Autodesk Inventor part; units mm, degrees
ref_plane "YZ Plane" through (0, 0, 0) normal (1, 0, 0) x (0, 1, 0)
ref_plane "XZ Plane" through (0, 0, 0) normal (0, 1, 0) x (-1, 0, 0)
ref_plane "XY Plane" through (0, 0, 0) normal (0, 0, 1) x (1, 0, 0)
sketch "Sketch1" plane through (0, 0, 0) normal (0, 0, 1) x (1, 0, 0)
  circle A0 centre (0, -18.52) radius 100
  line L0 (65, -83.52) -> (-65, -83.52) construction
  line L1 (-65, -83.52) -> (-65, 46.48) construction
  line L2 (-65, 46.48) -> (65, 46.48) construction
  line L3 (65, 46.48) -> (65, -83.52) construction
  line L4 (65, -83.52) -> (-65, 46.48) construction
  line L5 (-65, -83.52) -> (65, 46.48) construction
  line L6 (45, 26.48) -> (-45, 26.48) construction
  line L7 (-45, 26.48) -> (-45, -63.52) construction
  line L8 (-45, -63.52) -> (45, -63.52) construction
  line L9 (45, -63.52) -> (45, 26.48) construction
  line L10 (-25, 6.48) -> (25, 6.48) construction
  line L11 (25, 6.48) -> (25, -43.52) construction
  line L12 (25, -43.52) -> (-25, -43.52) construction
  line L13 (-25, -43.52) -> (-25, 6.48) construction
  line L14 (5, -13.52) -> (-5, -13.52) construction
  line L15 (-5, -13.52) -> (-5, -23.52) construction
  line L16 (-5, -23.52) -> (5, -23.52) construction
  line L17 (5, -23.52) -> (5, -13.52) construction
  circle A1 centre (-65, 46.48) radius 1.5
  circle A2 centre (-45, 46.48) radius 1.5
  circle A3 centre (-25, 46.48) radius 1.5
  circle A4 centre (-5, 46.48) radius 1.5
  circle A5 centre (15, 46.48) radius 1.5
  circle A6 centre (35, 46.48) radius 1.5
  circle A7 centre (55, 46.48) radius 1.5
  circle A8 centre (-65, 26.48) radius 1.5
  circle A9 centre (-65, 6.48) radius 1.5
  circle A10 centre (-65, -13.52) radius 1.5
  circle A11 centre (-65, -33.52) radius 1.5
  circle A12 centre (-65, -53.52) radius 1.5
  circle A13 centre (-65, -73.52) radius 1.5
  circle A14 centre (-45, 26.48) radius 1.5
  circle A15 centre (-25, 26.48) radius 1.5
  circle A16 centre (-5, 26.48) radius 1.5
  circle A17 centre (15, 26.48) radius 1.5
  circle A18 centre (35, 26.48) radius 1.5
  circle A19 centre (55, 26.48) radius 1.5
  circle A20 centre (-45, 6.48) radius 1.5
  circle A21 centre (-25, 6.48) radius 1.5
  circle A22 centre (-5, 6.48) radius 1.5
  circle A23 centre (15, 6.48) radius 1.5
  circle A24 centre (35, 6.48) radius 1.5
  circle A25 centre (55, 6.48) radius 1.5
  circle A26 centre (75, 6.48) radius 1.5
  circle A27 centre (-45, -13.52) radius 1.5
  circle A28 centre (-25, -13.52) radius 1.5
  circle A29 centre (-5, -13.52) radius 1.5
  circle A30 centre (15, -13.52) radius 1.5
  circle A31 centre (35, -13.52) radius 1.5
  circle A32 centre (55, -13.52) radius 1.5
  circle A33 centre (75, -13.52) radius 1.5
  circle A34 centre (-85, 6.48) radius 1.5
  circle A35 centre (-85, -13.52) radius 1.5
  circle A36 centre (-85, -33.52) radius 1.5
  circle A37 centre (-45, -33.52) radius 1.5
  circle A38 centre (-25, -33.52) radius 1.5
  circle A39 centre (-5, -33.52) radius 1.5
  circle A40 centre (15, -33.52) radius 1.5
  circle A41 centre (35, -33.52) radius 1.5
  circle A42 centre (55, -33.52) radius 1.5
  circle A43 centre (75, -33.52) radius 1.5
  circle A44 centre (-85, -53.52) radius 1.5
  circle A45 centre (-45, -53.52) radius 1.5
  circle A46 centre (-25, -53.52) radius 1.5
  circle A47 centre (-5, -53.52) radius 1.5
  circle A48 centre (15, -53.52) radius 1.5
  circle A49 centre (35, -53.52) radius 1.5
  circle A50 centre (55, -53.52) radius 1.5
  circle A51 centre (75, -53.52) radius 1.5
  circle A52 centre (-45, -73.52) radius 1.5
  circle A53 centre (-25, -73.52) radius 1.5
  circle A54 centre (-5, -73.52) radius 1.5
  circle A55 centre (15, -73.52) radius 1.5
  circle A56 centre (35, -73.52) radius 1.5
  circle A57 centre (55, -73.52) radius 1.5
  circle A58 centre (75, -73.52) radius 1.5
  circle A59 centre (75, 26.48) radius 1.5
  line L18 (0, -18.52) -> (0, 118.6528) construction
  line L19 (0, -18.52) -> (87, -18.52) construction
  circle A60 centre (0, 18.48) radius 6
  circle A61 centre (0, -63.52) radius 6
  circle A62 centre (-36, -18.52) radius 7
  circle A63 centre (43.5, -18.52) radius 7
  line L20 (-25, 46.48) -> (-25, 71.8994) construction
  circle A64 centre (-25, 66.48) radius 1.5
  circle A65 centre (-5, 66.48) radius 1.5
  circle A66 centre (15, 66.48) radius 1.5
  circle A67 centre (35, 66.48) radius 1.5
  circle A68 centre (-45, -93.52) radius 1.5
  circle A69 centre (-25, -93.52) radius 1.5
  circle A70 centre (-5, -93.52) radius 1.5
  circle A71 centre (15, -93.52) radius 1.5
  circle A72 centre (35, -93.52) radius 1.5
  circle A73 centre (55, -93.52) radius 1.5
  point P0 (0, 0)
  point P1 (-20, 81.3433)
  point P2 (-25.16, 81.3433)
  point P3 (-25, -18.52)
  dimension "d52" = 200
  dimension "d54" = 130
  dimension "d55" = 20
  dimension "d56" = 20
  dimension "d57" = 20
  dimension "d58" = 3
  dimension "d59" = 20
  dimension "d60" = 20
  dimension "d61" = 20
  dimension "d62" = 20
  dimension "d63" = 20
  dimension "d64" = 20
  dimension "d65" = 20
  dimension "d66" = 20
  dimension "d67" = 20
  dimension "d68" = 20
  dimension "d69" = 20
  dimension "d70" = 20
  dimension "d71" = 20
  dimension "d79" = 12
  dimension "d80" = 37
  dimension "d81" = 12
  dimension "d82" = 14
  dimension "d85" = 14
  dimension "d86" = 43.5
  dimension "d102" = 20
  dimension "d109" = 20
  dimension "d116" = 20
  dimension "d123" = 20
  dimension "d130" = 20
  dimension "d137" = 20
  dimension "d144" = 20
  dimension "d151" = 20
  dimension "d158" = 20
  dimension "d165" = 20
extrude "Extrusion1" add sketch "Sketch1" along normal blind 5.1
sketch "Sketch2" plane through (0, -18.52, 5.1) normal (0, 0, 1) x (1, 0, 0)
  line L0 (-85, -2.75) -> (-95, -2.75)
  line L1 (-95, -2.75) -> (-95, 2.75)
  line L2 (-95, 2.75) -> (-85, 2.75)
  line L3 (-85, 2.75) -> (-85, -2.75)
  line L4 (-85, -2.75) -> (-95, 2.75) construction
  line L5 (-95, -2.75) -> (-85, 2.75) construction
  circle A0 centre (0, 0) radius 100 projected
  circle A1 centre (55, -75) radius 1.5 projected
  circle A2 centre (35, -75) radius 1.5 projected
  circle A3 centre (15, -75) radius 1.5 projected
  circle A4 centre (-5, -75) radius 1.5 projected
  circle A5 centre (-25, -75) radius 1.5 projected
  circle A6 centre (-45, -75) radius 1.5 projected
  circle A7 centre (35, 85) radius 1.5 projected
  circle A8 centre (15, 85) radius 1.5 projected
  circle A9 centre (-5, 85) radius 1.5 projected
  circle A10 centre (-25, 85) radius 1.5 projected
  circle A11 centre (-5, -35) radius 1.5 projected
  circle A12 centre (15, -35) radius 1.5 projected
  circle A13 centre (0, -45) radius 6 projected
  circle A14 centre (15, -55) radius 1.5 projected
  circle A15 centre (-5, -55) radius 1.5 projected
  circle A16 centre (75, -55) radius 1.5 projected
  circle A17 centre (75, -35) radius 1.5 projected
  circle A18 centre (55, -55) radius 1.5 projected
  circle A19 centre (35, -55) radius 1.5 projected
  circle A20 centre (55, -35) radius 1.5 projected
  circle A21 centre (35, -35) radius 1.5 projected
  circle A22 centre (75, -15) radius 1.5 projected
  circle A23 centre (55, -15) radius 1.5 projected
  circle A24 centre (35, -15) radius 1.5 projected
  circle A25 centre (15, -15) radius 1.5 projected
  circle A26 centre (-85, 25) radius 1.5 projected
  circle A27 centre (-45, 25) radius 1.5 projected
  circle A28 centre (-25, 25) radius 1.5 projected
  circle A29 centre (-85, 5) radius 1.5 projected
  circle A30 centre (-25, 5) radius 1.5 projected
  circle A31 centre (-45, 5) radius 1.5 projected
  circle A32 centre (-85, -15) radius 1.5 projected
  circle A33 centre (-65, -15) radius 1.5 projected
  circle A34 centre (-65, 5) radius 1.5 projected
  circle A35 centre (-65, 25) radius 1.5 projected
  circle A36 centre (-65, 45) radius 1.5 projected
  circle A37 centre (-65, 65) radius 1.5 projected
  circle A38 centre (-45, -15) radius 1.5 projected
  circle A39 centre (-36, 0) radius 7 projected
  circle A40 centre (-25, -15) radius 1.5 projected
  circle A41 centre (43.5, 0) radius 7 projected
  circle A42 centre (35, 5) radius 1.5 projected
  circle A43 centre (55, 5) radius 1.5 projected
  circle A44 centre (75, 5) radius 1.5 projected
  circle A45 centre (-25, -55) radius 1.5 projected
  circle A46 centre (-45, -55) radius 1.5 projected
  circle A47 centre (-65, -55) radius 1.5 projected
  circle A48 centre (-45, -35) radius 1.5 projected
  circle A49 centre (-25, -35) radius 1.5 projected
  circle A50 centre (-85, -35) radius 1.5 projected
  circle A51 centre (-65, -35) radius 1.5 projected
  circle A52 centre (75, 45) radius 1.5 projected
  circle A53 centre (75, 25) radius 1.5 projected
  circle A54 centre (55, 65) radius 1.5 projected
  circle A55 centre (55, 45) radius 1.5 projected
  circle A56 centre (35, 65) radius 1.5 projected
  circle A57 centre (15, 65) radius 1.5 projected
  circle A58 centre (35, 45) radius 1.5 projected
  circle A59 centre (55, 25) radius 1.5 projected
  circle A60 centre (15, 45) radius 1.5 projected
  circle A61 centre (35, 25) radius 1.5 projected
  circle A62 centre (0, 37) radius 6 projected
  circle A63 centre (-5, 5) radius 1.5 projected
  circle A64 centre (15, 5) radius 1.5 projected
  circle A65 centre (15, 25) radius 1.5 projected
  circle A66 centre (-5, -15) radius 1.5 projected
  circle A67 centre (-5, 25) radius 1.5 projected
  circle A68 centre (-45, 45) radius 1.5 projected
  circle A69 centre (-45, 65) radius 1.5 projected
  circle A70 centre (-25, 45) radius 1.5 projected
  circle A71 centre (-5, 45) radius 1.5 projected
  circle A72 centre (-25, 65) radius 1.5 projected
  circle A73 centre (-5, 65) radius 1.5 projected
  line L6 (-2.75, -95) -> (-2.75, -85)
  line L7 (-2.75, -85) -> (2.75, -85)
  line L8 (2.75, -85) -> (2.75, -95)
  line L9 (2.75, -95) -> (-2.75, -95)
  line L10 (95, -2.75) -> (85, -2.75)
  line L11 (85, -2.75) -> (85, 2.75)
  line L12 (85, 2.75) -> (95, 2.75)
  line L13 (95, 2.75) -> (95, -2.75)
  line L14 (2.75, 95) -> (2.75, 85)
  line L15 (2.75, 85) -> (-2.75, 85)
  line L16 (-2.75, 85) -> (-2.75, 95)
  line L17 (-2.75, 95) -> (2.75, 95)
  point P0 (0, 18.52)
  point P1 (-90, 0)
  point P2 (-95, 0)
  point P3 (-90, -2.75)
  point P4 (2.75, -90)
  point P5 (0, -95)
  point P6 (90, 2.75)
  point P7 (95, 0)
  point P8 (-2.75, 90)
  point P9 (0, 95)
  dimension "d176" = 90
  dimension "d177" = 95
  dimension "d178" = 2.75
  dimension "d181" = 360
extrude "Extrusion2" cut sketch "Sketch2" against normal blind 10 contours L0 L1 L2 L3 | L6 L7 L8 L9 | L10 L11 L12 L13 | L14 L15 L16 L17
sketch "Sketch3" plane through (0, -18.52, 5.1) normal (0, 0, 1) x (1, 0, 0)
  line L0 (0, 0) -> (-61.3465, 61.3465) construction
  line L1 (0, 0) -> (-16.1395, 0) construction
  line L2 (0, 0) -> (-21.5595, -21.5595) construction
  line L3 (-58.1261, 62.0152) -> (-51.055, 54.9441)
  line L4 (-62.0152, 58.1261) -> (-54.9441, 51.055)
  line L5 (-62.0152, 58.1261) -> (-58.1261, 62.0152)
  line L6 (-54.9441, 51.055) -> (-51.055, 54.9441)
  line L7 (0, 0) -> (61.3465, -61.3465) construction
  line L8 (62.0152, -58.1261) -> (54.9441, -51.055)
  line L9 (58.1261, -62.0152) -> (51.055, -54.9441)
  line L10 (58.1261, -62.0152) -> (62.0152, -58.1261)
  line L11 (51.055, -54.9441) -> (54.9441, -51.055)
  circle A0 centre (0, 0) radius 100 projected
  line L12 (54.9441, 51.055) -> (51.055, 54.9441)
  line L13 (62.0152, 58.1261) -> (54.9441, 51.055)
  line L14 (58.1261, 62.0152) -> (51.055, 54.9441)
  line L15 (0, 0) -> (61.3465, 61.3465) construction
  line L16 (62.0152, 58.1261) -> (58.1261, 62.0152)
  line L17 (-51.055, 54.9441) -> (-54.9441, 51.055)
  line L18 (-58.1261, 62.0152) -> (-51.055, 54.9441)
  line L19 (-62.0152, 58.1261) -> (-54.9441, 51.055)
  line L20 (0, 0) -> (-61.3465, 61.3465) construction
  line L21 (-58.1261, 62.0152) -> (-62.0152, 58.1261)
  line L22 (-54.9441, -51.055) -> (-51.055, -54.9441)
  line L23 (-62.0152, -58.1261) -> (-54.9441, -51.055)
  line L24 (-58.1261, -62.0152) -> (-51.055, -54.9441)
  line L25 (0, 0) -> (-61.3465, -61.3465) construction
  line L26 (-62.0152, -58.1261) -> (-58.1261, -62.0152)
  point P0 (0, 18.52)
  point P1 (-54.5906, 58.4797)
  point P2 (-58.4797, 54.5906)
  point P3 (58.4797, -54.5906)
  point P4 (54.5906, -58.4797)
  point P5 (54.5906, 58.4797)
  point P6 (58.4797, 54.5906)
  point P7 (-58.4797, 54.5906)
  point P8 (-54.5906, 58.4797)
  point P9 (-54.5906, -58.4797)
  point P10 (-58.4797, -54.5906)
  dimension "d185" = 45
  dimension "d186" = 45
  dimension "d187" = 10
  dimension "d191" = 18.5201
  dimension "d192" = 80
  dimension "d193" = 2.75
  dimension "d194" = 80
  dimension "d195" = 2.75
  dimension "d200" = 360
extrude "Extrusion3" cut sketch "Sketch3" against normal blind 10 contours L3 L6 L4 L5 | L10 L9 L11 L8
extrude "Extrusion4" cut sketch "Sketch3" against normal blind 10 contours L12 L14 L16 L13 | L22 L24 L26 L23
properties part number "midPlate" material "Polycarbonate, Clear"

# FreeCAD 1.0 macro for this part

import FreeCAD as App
import Part
import Sketcher

V = App.Vector
Q = App.Units.Quantity


def add_polygon(sketch, points):
    """Adds a closed chain of lines whose ends are joined by coincident constraints."""
    first, n = sketch.GeometryCount, len(points)
    for a, b in zip(points, points[1:] + points[:1]):
        sketch.addGeometry(Part.LineSegment(App.Vector(*a, 0), App.Vector(*b, 0)), False)
    for i in range(n):
        sketch.addConstraint(Sketcher.Constraint("Coincident", first + i, 2, first + (i + 1) % n, 1))

doc = App.newDocument("Part")
params = doc.addObject("Spreadsheet::Sheet", "Params")
for row, (alias, value) in enumerate([
    ("sketch1_diameter", "200 mm"),
    ("sketch1_diameter2", "3 mm"),
    ("sketch1_diameter3", "12 mm"),
    ("sketch1_diameter4", "14 mm"),
    ("pad1_length", "5.1 mm"),
    ("sketch2_width", "10 mm"),
    ("pocket1_length", "10 mm"),
    ("sketch3_length", "10 mm"),
    ("sketch3_length2", "5.5 mm"),
    ("pocket2_length", "10 mm"),
    ("sketch4_length", "10 mm"),
    ("sketch4_length2", "5.5 mm"),
    ("pocket3_length", "10 mm"),
], start=1):
    params.set(f"A{row}", alias)
    params.set(f"B{row}", "=" + value)
    params.setAlias(f"B{row}", alias)

body = doc.addObject("PartDesign::Body", "Body")

sketch1 = body.newObject("Sketcher::SketchObject", "Sketch")
sketch1.AttachmentSupport = (doc.getObject("XY_Plane"), [""])
sketch1.MapMode = "FlatFace"
sketch1.addGeometry([
    Part.Circle(V(0, -18.5, 0), V(0, 0, 1), 100),
    Part.Circle(V(-65, -73.5, 0), V(0, 0, 1), 1.5),
    Part.Circle(V(-45, -93.5, 0), V(0, 0, 1), 1.5),
    Part.Circle(V(-45, -73.5, 0), V(0, 0, 1), 1.5),
    Part.Circle(V(-25, -93.5, 0), V(0, 0, 1), 1.5),
    Part.Circle(V(-5, -93.5, 0), V(0, 0, 1), 1.5),
    Part.Circle(V(-25, -73.5, 0), V(0, 0, 1), 1.5),
    Part.Circle(V(-5, -73.5, 0), V(0, 0, 1), 1.5),
    Part.Circle(V(-85, -53.5, 0), V(0, 0, 1), 1.5),
    Part.Circle(V(-65, -53.5, 0), V(0, 0, 1), 1.5),
    Part.Circle(V(-85, -33.5, 0), V(0, 0, 1), 1.5),
    Part.Circle(V(-65, -33.5, 0), V(0, 0, 1), 1.5),
    Part.Circle(V(-45, -53.5, 0), V(0, 0, 1), 1.5),
    Part.Circle(V(-25, -53.5, 0), V(0, 0, 1), 1.5),
    Part.Circle(V(-5, -53.5, 0), V(0, 0, 1), 1.5),
    Part.Circle(V(-45, -33.5, 0), V(0, 0, 1), 1.5),
    Part.Circle(V(-25, -33.5, 0), V(0, 0, 1), 1.5),
    Part.Circle(V(-5, -33.5, 0), V(0, 0, 1), 1.5),
    Part.Circle(V(15, -93.5, 0), V(0, 0, 1), 1.5),
    Part.Circle(V(15, -73.5, 0), V(0, 0, 1), 1.5),
    Part.Circle(V(35, -93.5, 0), V(0, 0, 1), 1.5),
    Part.Circle(V(35, -73.5, 0), V(0, 0, 1), 1.5),
    Part.Circle(V(55, -93.5, 0), V(0, 0, 1), 1.5),
    Part.Circle(V(55, -73.5, 0), V(0, 0, 1), 1.5),
    Part.Circle(V(75, -73.5, 0), V(0, 0, 1), 1.5),
    Part.Circle(V(0, -63.5, 0), V(0, 0, 1), 6),
    Part.Circle(V(15, -53.5, 0), V(0, 0, 1), 1.5),
    Part.Circle(V(35, -53.5, 0), V(0, 0, 1), 1.5),
    Part.Circle(V(15, -33.5, 0), V(0, 0, 1), 1.5),
    Part.Circle(V(35, -33.5, 0), V(0, 0, 1), 1.5),
    Part.Circle(V(55, -53.5, 0), V(0, 0, 1), 1.5),
    Part.Circle(V(75, -53.5, 0), V(0, 0, 1), 1.5),
    Part.Circle(V(55, -33.5, 0), V(0, 0, 1), 1.5),
    Part.Circle(V(75, -33.5, 0), V(0, 0, 1), 1.5),
    Part.Circle(V(-85, -13.5, 0), V(0, 0, 1), 1.5),
    Part.Circle(V(-65, -13.5, 0), V(0, 0, 1), 1.5),
    Part.Circle(V(-85, 6.5, 0), V(0, 0, 1), 1.5),
    Part.Circle(V(-65, 6.5, 0), V(0, 0, 1), 1.5),
    Part.Circle(V(-65, 26.5, 0), V(0, 0, 1), 1.5),
    Part.Circle(V(-45, -13.5, 0), V(0, 0, 1), 1.5),
    Part.Circle(V(-36, -18.5, 0), V(0, 0, 1), 7),
    Part.Circle(V(-25, -13.5, 0), V(0, 0, 1), 1.5),
    Part.Circle(V(-5, -13.5, 0), V(0, 0, 1), 1.5),
    Part.Circle(V(-45, 6.5, 0), V(0, 0, 1), 1.5),
    Part.Circle(V(-45, 26.5, 0), V(0, 0, 1), 1.5),
    Part.Circle(V(-25, 6.5, 0), V(0, 0, 1), 1.5),
    Part.Circle(V(-5, 6.5, 0), V(0, 0, 1), 1.5),
    Part.Circle(V(-25, 26.5, 0), V(0, 0, 1), 1.5),
    Part.Circle(V(-5, 26.5, 0), V(0, 0, 1), 1.5),
    Part.Circle(V(-65, 46.5, 0), V(0, 0, 1), 1.5),
    Part.Circle(V(-45, 46.5, 0), V(0, 0, 1), 1.5),
    Part.Circle(V(-25, 46.5, 0), V(0, 0, 1), 1.5),
    Part.Circle(V(-5, 46.5, 0), V(0, 0, 1), 1.5),
    Part.Circle(V(-25, 66.5, 0), V(0, 0, 1), 1.5),
    Part.Circle(V(-5, 66.5, 0), V(0, 0, 1), 1.5),
    Part.Circle(V(15, -13.5, 0), V(0, 0, 1), 1.5),
    Part.Circle(V(35, -13.5, 0), V(0, 0, 1), 1.5),
    Part.Circle(V(43.5, -18.5, 0), V(0, 0, 1), 7),
    Part.Circle(V(0, 18.5, 0), V(0, 0, 1), 6),
    Part.Circle(V(15, 6.5, 0), V(0, 0, 1), 1.5),
    Part.Circle(V(15, 26.5, 0), V(0, 0, 1), 1.5),
    Part.Circle(V(35, 6.5, 0), V(0, 0, 1), 1.5),
    Part.Circle(V(35, 26.5, 0), V(0, 0, 1), 1.5),
    Part.Circle(V(55, -13.5, 0), V(0, 0, 1), 1.5),
    Part.Circle(V(75, -13.5, 0), V(0, 0, 1), 1.5),
    Part.Circle(V(55, 6.5, 0), V(0, 0, 1), 1.5),
    Part.Circle(V(55, 26.5, 0), V(0, 0, 1), 1.5),
    Part.Circle(V(75, 6.5, 0), V(0, 0, 1), 1.5),
    Part.Circle(V(75, 26.5, 0), V(0, 0, 1), 1.5),
    Part.Circle(V(15, 46.5, 0), V(0, 0, 1), 1.5),
    Part.Circle(V(35, 46.5, 0), V(0, 0, 1), 1.5),
    Part.Circle(V(15, 66.5, 0), V(0, 0, 1), 1.5),
    Part.Circle(V(35, 66.5, 0), V(0, 0, 1), 1.5),
    Part.Circle(V(55, 46.5, 0), V(0, 0, 1), 1.5),
], False)
sketch1.addConstraint([
    Sketcher.Constraint("Equal", 1, 2),
    Sketcher.Constraint("Equal", 2, 3),
    Sketcher.Constraint("Equal", 3, 4),
    Sketcher.Constraint("Equal", 4, 5),
    Sketcher.Constraint("Equal", 5, 6),
    Sketcher.Constraint("Equal", 6, 7),
    Sketcher.Constraint("Equal", 7, 8),
    Sketcher.Constraint("Equal", 8, 9),
    Sketcher.Constraint("Equal", 9, 10),
    Sketcher.Constraint("Equal", 10, 11),
    Sketcher.Constraint("Equal", 11, 12),
    Sketcher.Constraint("Equal", 12, 13),
    Sketcher.Constraint("Equal", 13, 14),
    Sketcher.Constraint("Equal", 14, 15),
    Sketcher.Constraint("Equal", 15, 16),
    Sketcher.Constraint("Equal", 16, 17),
    Sketcher.Constraint("Equal", 17, 18),
    Sketcher.Constraint("Equal", 18, 19),
    Sketcher.Constraint("Equal", 19, 20),
    Sketcher.Constraint("Equal", 20, 21),
    Sketcher.Constraint("Equal", 21, 22),
    Sketcher.Constraint("Equal", 22, 23),
    Sketcher.Constraint("Equal", 23, 24),
    Sketcher.Constraint("Equal", 24, 26),
    Sketcher.Constraint("Equal", 26, 27),
    Sketcher.Constraint("Equal", 27, 28),
    Sketcher.Constraint("Equal", 28, 29),
    Sketcher.Constraint("Equal", 29, 30),
    Sketcher.Constraint("Equal", 30, 31),
    Sketcher.Constraint("Equal", 31, 32),
    Sketcher.Constraint("Equal", 32, 33),
    Sketcher.Constraint("Equal", 33, 34),
    Sketcher.Constraint("Equal", 34, 35),
    Sketcher.Constraint("Equal", 35, 36),
    Sketcher.Constraint("Equal", 36, 37),
    Sketcher.Constraint("Equal", 37, 38),
    Sketcher.Constraint("Equal", 38, 39),
    Sketcher.Constraint("Equal", 39, 41),
    Sketcher.Constraint("Equal", 41, 42),
    Sketcher.Constraint("Equal", 42, 43),
    Sketcher.Constraint("Equal", 43, 44),
    Sketcher.Constraint("Equal", 44, 45),
    Sketcher.Constraint("Equal", 45, 46),
    Sketcher.Constraint("Equal", 46, 47),
    Sketcher.Constraint("Equal", 47, 48),
    Sketcher.Constraint("Equal", 48, 49),
    Sketcher.Constraint("Equal", 49, 50),
    Sketcher.Constraint("Equal", 50, 51),
    Sketcher.Constraint("Equal", 51, 52),
    Sketcher.Constraint("Equal", 52, 53),
    Sketcher.Constraint("Equal", 53, 54),
    Sketcher.Constraint("Equal", 54, 55),
    Sketcher.Constraint("Equal", 55, 56),
    Sketcher.Constraint("Equal", 40, 57),
    Sketcher.Constraint("Equal", 25, 58),
    Sketcher.Constraint("Equal", 56, 59),
    Sketcher.Constraint("Equal", 59, 60),
    Sketcher.Constraint("Equal", 60, 61),
    Sketcher.Constraint("Equal", 61, 62),
    Sketcher.Constraint("Equal", 62, 63),
    Sketcher.Constraint("Equal", 63, 64),
    Sketcher.Constraint("Equal", 64, 65),
    Sketcher.Constraint("Equal", 65, 66),
    Sketcher.Constraint("Equal", 66, 67),
    Sketcher.Constraint("Equal", 67, 68),
    Sketcher.Constraint("Equal", 68, 69),
    Sketcher.Constraint("Equal", 69, 70),
    Sketcher.Constraint("Equal", 70, 71),
    Sketcher.Constraint("Equal", 71, 72),
    Sketcher.Constraint("Equal", 72, 73),
    Sketcher.Constraint("PointOnObject", 0, 3, -2),
    Sketcher.Constraint("PointOnObject", 25, 3, -2),
    Sketcher.Constraint("PointOnObject", 58, 3, -2),
    Sketcher.Constraint("Horizontal", 1, 3, 3, 3),
    Sketcher.Constraint("Horizontal", 2, 3, 4, 3),
    Sketcher.Constraint("Horizontal", 4, 3, 5, 3),
    Sketcher.Constraint("Horizontal", 3, 3, 6, 3),
    Sketcher.Constraint("Horizontal", 6, 3, 7, 3),
    Sketcher.Constraint("Horizontal", 8, 3, 9, 3),
    Sketcher.Constraint("Horizontal", 10, 3, 11, 3),
    Sketcher.Constraint("Horizontal", 9, 3, 12, 3),
    Sketcher.Constraint("Horizontal", 12, 3, 13, 3),
    Sketcher.Constraint("Horizontal", 13, 3, 14, 3),
    Sketcher.Constraint("Horizontal", 11, 3, 15, 3),
    Sketcher.Constraint("Horizontal", 15, 3, 16, 3),
    Sketcher.Constraint("Horizontal", 16, 3, 17, 3),
    Sketcher.Constraint("Horizontal", 5, 3, 18, 3),
    Sketcher.Constraint("Horizontal", 7, 3, 19, 3),
    Sketcher.Constraint("Horizontal", 18, 3, 20, 3),
    Sketcher.Constraint("Horizontal", 19, 3, 21, 3),
    Sketcher.Constraint("Horizontal", 20, 3, 22, 3),
    Sketcher.Constraint("Horizontal", 21, 3, 23, 3),
    Sketcher.Constraint("Horizontal", 23, 3, 24, 3),
    Sketcher.Constraint("Horizontal", 14, 3, 26, 3),
    Sketcher.Constraint("Horizontal", 26, 3, 27, 3),
    Sketcher.Constraint("Horizontal", 17, 3, 28, 3),
    Sketcher.Constraint("Horizontal", 28, 3, 29, 3),
    Sketcher.Constraint("Horizontal", 27, 3, 30, 3),
    Sketcher.Constraint("Horizontal", 30, 3, 31, 3),
    Sketcher.Constraint("Horizontal", 29, 3, 32, 3),
    Sketcher.Constraint("Horizontal", 32, 3, 33, 3),
    Sketcher.Constraint("Horizontal", 34, 3, 35, 3),
    Sketcher.Constraint("Horizontal", 36, 3, 37, 3),
    Sketcher.Constraint("Horizontal", 35, 3, 39, 3),
    Sketcher.Constraint("Horizontal", 0, 3, 40, 3),
    Sketcher.Constraint("Horizontal", 39, 3, 41, 3),
    Sketcher.Constraint("Horizontal", 41, 3, 42, 3),
    Sketcher.Constraint("Horizontal", 37, 3, 43, 3),
    Sketcher.Constraint("Horizontal", 38, 3, 44, 3),
    Sketcher.Constraint("Horizontal", 43, 3, 45, 3),
    Sketcher.Constraint("Horizontal", 45, 3, 46, 3),
    Sketcher.Constraint("Horizontal", 44, 3, 47, 3),
    Sketcher.Constraint("Horizontal", 47, 3, 48, 3),
    Sketcher.Constraint("Horizontal", 49, 3, 50, 3),
    Sketcher.Constraint("Horizontal", 50, 3, 51, 3),
    Sketcher.Constraint("Horizontal", 51, 3, 52, 3),
    Sketcher.Constraint("Horizontal", 53, 3, 54, 3),
    Sketcher.Constraint("Horizontal", 42, 3, 55, 3),
    Sketcher.Constraint("Horizontal", 55, 3, 56, 3),
    Sketcher.Constraint("Horizontal", 40, 3, 57, 3),
    Sketcher.Constraint("Horizontal", 46, 3, 59, 3),
    Sketcher.Constraint("Horizontal", 48, 3, 60, 3),
    Sketcher.Constraint("Horizontal", 59, 3, 61, 3),
    Sketcher.Constraint("Horizontal", 60, 3, 62, 3),
    Sketcher.Constraint("Horizontal", 56, 3, 63, 3),
    Sketcher.Constraint("Horizontal", 63, 3, 64, 3),
    Sketcher.Constraint("Horizontal", 61, 3, 65, 3),
    Sketcher.Constraint("Horizontal", 62, 3, 66, 3),
    Sketcher.Constraint("Horizontal", 65, 3, 67, 3),
    Sketcher.Constraint("Horizontal", 66, 3, 68, 3),
    Sketcher.Constraint("Horizontal", 52, 3, 69, 3),
    Sketcher.Constraint("Horizontal", 69, 3, 70, 3),
    Sketcher.Constraint("Horizontal", 54, 3, 71, 3),
    Sketcher.Constraint("Horizontal", 71, 3, 72, 3),
    Sketcher.Constraint("Horizontal", 70, 3, 73, 3),
    Sketcher.Constraint("Vertical", 2, 3, 3, 3),
    Sketcher.Constraint("Vertical", 4, 3, 6, 3),
    Sketcher.Constraint("Vertical", 5, 3, 7, 3),
    Sketcher.Constraint("Vertical", 1, 3, 9, 3),
    Sketcher.Constraint("Vertical", 8, 3, 10, 3),
    Sketcher.Constraint("Vertical", 9, 3, 11, 3),
    Sketcher.Constraint("Vertical", 3, 3, 12, 3),
    Sketcher.Constraint("Vertical", 6, 3, 13, 3),
    Sketcher.Constraint("Vertical", 7, 3, 14, 3),
    Sketcher.Constraint("Vertical", 12, 3, 15, 3),
    Sketcher.Constraint("Vertical", 13, 3, 16, 3),
    Sketcher.Constraint("Vertical", 14, 3, 17, 3),
    Sketcher.Constraint("Vertical", 18, 3, 19, 3),
    Sketcher.Constraint("Vertical", 20, 3, 21, 3),
    Sketcher.Constraint("Vertical", 22, 3, 23, 3),
    Sketcher.Constraint("Vertical", 19, 3, 26, 3),
    Sketcher.Constraint("Vertical", 21, 3, 27, 3),
    Sketcher.Constraint("Vertical", 26, 3, 28, 3),
    Sketcher.Constraint("Vertical", 27, 3, 29, 3),
    Sketcher.Constraint("Vertical", 23, 3, 30, 3),
    Sketcher.Constraint("Vertical", 24, 3, 31, 3),
    Sketcher.Constraint("Vertical", 30, 3, 32, 3),
    Sketcher.Constraint("Vertical", 31, 3, 33, 3),
    Sketcher.Constraint("Vertical", 10, 3, 34, 3),
    Sketcher.Constraint("Vertical", 11, 3, 35, 3),
    Sketcher.Constraint("Vertical", 34, 3, 36, 3),
    Sketcher.Constraint("Vertical", 35, 3, 37, 3),
    Sketcher.Constraint("Vertical", 37, 3, 38, 3),
    Sketcher.Constraint("Vertical", 15, 3, 39, 3),
    Sketcher.Constraint("Vertical", 16, 3, 41, 3),
    Sketcher.Constraint("Vertical", 17, 3, 42, 3),
    Sketcher.Constraint("Vertical", 39, 3, 43, 3),
    Sketcher.Constraint("Vertical", 43, 3, 44, 3),
    Sketcher.Constraint("Vertical", 41, 3, 45, 3),
    Sketcher.Constraint("Vertical", 42, 3, 46, 3),
    Sketcher.Constraint("Vertical", 45, 3, 47, 3),
    Sketcher.Constraint("Vertical", 46, 3, 48, 3),
    Sketcher.Constraint("Vertical", 38, 3, 49, 3),
    Sketcher.Constraint("Vertical", 44, 3, 50, 3),
    Sketcher.Constraint("Vertical", 47, 3, 51, 3),
    Sketcher.Constraint("Vertical", 48, 3, 52, 3),
    Sketcher.Constraint("Vertical", 51, 3, 53, 3),
    Sketcher.Constraint("Vertical", 52, 3, 54, 3),
    Sketcher.Constraint("Vertical", 28, 3, 55, 3),
    Sketcher.Constraint("Vertical", 29, 3, 56, 3),
    Sketcher.Constraint("Vertical", 55, 3, 59, 3),
    Sketcher.Constraint("Vertical", 59, 3, 60, 3),
    Sketcher.Constraint("Vertical", 56, 3, 61, 3),
    Sketcher.Constraint("Vertical", 61, 3, 62, 3),
    Sketcher.Constraint("Vertical", 32, 3, 63, 3),
    Sketcher.Constraint("Vertical", 33, 3, 64, 3),
    Sketcher.Constraint("Vertical", 63, 3, 65, 3),
    Sketcher.Constraint("Vertical", 65, 3, 66, 3),
    Sketcher.Constraint("Vertical", 64, 3, 67, 3),
    Sketcher.Constraint("Vertical", 67, 3, 68, 3),
    Sketcher.Constraint("Vertical", 60, 3, 69, 3),
    Sketcher.Constraint("Vertical", 62, 3, 70, 3),
    Sketcher.Constraint("Vertical", 69, 3, 71, 3),
    Sketcher.Constraint("Vertical", 70, 3, 72, 3),
    Sketcher.Constraint("Vertical", 66, 3, 73, 3),
    Sketcher.Constraint("Diameter", 0, Q("200 mm")),
    Sketcher.Constraint("Diameter", 1, Q("3 mm")),
    Sketcher.Constraint("Diameter", 25, Q("12 mm")),
    Sketcher.Constraint("Diameter", 40, Q("14 mm")),
    Sketcher.Constraint("DistanceX", -1, 1, 57, 3, Q("43.5 mm")),
    Sketcher.Constraint("DistanceX", 1, 3, -1, 1, Q("65 mm")),
    Sketcher.Constraint("DistanceX", 2, 3, -1, 1, Q("45 mm")),
    Sketcher.Constraint("DistanceX", 4, 3, -1, 1, Q("25 mm")),
    Sketcher.Constraint("DistanceX", 5, 3, -1, 1, Q("5 mm")),
    Sketcher.Constraint("DistanceX", 8, 3, -1, 1, Q("85 mm")),
    Sketcher.Constraint("DistanceX", -1, 1, 18, 3, Q("15 mm")),
    Sketcher.Constraint("DistanceX", -1, 1, 20, 3, Q("35 mm")),
    Sketcher.Constraint("DistanceX", -1, 1, 22, 3, Q("55 mm")),
    Sketcher.Constraint("DistanceX", -1, 1, 24, 3, Q("75 mm")),
    Sketcher.Constraint("DistanceX", 40, 3, -1, 1, Q("36 mm")),
    Sketcher.Constraint("DistanceY", 0, 3, -1, 1, Q("18.52 mm")),
    Sketcher.Constraint("DistanceY", 1, 3, -1, 1, Q("73.52 mm")),
    Sketcher.Constraint("DistanceY", 2, 3, -1, 1, Q("93.52 mm")),
    Sketcher.Constraint("DistanceY", 8, 3, -1, 1, Q("53.52 mm")),
    Sketcher.Constraint("DistanceY", 10, 3, -1, 1, Q("33.52 mm")),
    Sketcher.Constraint("DistanceY", 25, 3, -1, 1, Q("63.52 mm")),
    Sketcher.Constraint("DistanceY", 34, 3, -1, 1, Q("13.52 mm")),
    Sketcher.Constraint("DistanceY", -1, 1, 36, 3, Q("6.48 mm")),
    Sketcher.Constraint("DistanceY", -1, 1, 38, 3, Q("26.48 mm")),
    Sketcher.Constraint("DistanceY", -1, 1, 49, 3, Q("46.48 mm")),
    Sketcher.Constraint("DistanceY", -1, 1, 53, 3, Q("66.48 mm")),
    Sketcher.Constraint("DistanceY", -1, 1, 58, 3, Q("18.48 mm")),
])
sketch1.setExpression("Constraints[195]", "Params.sketch1_diameter")
sketch1.setExpression("Constraints[196]", "Params.sketch1_diameter2")
sketch1.setExpression("Constraints[197]", "Params.sketch1_diameter3")
sketch1.setExpression("Constraints[198]", "Params.sketch1_diameter4")
pad1 = body.newObject("PartDesign::Pad", "Pad")
pad1.Profile = sketch1
pad1.setExpression("Length", "Params.pad1_length")

sketch2 = body.newObject("Sketcher::SketchObject", "Sketch001")
sketch2.AttachmentSupport = (doc.getObject("XY_Plane"), [""])
sketch2.MapMode = "FlatFace"
sketch2.AttachmentOffset = App.Placement(V(0, 0, 5.1), App.Rotation())
add_polygon(sketch2, [(-95, -21), (-85, -21), (-85, -16), (-95, -16)])
add_polygon(sketch2, [(-3, -104), (-3, -114), (3, -114), (3, -104)])
add_polygon(sketch2, [(85, -21), (95, -21), (95, -16), (85, -16)])
add_polygon(sketch2, [(3, 66), (3, 76), (-3, 76), (-3, 66)])
sketch2.addConstraint([
    Sketcher.Constraint("Horizontal", 0),
    Sketcher.Constraint("Vertical", 1),
    Sketcher.Constraint("Horizontal", 2),
    Sketcher.Constraint("Vertical", 3),
    Sketcher.Constraint("Vertical", 4),
    Sketcher.Constraint("Horizontal", 5),
    Sketcher.Constraint("Vertical", 6),
    Sketcher.Constraint("Horizontal", 7),
    Sketcher.Constraint("Horizontal", 8),
    Sketcher.Constraint("Vertical", 9),
    Sketcher.Constraint("Horizontal", 10),
    Sketcher.Constraint("Vertical", 11),
    Sketcher.Constraint("Vertical", 12),
    Sketcher.Constraint("Horizontal", 13),
    Sketcher.Constraint("Vertical", 14),
    Sketcher.Constraint("Horizontal", 15),
    Sketcher.Constraint("Symmetric", 3, 2, 8, 2, -2),
    Sketcher.Constraint("Symmetric", 1, 2, 10, 2, -2),
    Sketcher.Constraint("Vertical", 6, 2, 12, 2),
    Sketcher.Constraint("Vertical", 7, 2, 13, 2),
    Sketcher.Constraint("Equal", 15, 1),
    Sketcher.Constraint("Equal", 10, 4),
    Sketcher.Constraint("Equal", 6, 12),
    Sketcher.Constraint("DistanceX", 2, 2, -1, 1, Q("95 mm")),
    Sketcher.Constraint("DistanceX", 0, 1, 0, 2, Q("10 mm")),
    Sketcher.Constraint("DistanceX", 4, 2, -1, 1, Q("2.75 mm")),
    Sketcher.Constraint("DistanceX", -1, 1, 5, 2, Q("2.75 mm")),
    Sketcher.Constraint("DistanceY", 0, 2, -1, 1, Q("21.27 mm")),
    Sketcher.Constraint("DistanceY", 4, 2, -1, 1, Q("113.52 mm")),
    Sketcher.Constraint("DistanceY", -1, 1, 12, 2, Q("76.48 mm")),
])
sketch2.setExpression("Constraints[40]", "Params.sketch2_width")
pocket1 = body.newObject("PartDesign::Pocket", "Pocket")
pocket1.Profile = sketch2
pocket1.setExpression("Length", "Params.pocket1_length")

sketch3 = body.newObject("Sketcher::SketchObject", "Sketch002")
sketch3.AttachmentSupport = (doc.getObject("XY_Plane"), [""])
sketch3.MapMode = "FlatFace"
sketch3.AttachmentOffset = App.Placement(V(0, 0, 5.1), App.Rotation())
add_polygon(sketch3, [(-51, 36), (-58, 43), (-62, 40), (-55, 33)])
add_polygon(sketch3, [(58, -81), (62, -77), (55, -70), (51, -73)])
sketch3.addConstraint([
    Sketcher.Constraint("Perpendicular", 0, 1),
    Sketcher.Constraint("Perpendicular", 1, 2),
    Sketcher.Constraint("Perpendicular", 2, 3),
    Sketcher.Constraint("Parallel", 3, 4),
    Sketcher.Constraint("Perpendicular", 4, 5),
    Sketcher.Constraint("Perpendicular", 5, 6),
    Sketcher.Constraint("Perpendicular", 6, 7),
    Sketcher.Constraint("Equal", 3, 4),
    Sketcher.Constraint("Equal", 2, 5),
    Sketcher.Constraint("Angle", 2, Q("-45 deg")),
    Sketcher.Constraint("Distance", 0, Q("10 mm")),
    Sketcher.Constraint("Distance", 1, Q("5.5 mm")),
    Sketcher.Constraint("DistanceY", 5, 2, 2, 2, Q("102.11 mm")),
    Sketcher.Constraint("DistanceX", 3, 2, 6, 2, Q("102.11 mm")),
    Sketcher.Constraint("DistanceX", 0, 2, -1, 1, Q("58.126 mm")),
    Sketcher.Constraint("DistanceY", -1, 1, 1, 2, Q("39.606 mm")),
])
sketch3.setExpression("Constraints[18]", "Params.sketch3_length")
sketch3.setExpression("Constraints[19]", "Params.sketch3_length2")
pocket2 = body.newObject("PartDesign::Pocket", "Pocket001")
pocket2.Profile = sketch3
pocket2.setExpression("Length", "Params.pocket2_length")

sketch4 = body.newObject("Sketcher::SketchObject", "Sketch003")
sketch4.AttachmentSupport = (doc.getObject("XY_Plane"), [""])
sketch4.MapMode = "FlatFace"
sketch4.AttachmentOffset = App.Placement(V(0, 0, 5.1), App.Rotation())
add_polygon(sketch4, [(51, 36), (55, 33), (62, 40), (58, 43)])
add_polygon(sketch4, [(-51, -73), (-55, -70), (-62, -77), (-58, -81)])
sketch4.addConstraint([
    Sketcher.Constraint("Perpendicular", 0, 1),
    Sketcher.Constraint("Perpendicular", 1, 2),
    Sketcher.Constraint("Perpendicular", 2, 3),
    Sketcher.Constraint("Perpendicular", 3, 4),
    Sketcher.Constraint("Perpendicular", 4, 5),
    Sketcher.Constraint("Perpendicular", 5, 6),
    Sketcher.Constraint("Perpendicular", 6, 7),
    Sketcher.Constraint("Equal", 2, 4),
    Sketcher.Constraint("Equal", 3, 5),
    Sketcher.Constraint("Angle", 0, Q("-45 deg")),
    Sketcher.Constraint("Distance", 1, Q("10 mm")),
    Sketcher.Constraint("Distance", 0, Q("5.5 mm")),
    Sketcher.Constraint("DistanceY", 4, 2, 0, 2, Q("102.11 mm")),
    Sketcher.Constraint("DistanceX", 7, 2, 3, 2, Q("102.11 mm")),
    Sketcher.Constraint("DistanceX", -1, 1, 0, 2, Q("54.944 mm")),
    Sketcher.Constraint("DistanceY", -1, 1, 0, 2, Q("32.535 mm")),
])
sketch4.setExpression("Constraints[18]", "Params.sketch4_length")
sketch4.setExpression("Constraints[19]", "Params.sketch4_length2")
pocket3 = body.newObject("PartDesign::Pocket", "Pocket002")
pocket3.Profile = sketch4
pocket3.setExpression("Length", "Params.pocket3_length")

doc.recompute()
